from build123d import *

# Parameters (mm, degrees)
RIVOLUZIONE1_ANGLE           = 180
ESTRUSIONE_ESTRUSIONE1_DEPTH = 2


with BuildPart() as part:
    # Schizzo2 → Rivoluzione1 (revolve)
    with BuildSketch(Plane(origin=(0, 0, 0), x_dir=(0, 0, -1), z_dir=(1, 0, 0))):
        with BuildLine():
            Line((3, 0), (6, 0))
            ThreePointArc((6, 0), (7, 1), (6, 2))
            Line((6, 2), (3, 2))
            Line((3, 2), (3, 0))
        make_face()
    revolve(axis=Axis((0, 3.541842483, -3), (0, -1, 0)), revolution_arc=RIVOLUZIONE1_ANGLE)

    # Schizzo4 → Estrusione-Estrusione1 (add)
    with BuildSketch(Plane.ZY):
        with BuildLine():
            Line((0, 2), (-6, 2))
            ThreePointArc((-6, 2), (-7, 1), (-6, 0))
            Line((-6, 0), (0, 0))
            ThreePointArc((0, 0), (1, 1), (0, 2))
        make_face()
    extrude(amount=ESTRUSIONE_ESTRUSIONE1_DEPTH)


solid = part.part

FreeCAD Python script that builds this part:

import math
import FreeCAD as App
import Part
import Sketcher
from FreeCAD import Vector
Q = App.Units.Quantity

doc = App.newDocument("Part")
body = doc.addObject("PartDesign::Body", "Body")

sketch1 = doc.addObject("Sketcher::SketchObject", "Sketch")
body.addObject(sketch1)
sketch1.AttachmentSupport = (doc.YZ_Plane, [""])
sketch1.MapMode = "FlatFace"
sketch1.addGeometry([
    Part.LineSegment(Vector(0, -3, 0), Vector(0, -6, 0)),
    Part.ArcOfCircle(Part.Circle(Vector(1, -6, 0), Vector(0, 0, 1), 1), math.radians(180), math.radians(360)),
    Part.LineSegment(Vector(2, -6, 0), Vector(2, -3, 0)),
    Part.LineSegment(Vector(2, -3, 0), Vector(0, -3, 0)),
], False)
sketch1.addGeometry(Part.LineSegment(Vector(2, -3, 0), Vector(0, -3, 0)), True)
sketch1.addConstraint([
    Sketcher.Constraint("Tangent", 0, 2, 1, 1),
    Sketcher.Constraint("Tangent", 1, 2, 2, 1),
    Sketcher.Constraint("Coincident", 2, 2, 3, 1),
    Sketcher.Constraint("Coincident", 3, 2, 0, 1),
    Sketcher.Constraint("Vertical", 0),
    Sketcher.Constraint("Vertical", 2),
    Sketcher.Constraint("Horizontal", 3),
    Sketcher.Constraint("Horizontal", 4),
    Sketcher.Constraint("Coincident", 4, 1, 2, 2),
    Sketcher.Constraint("PointOnObject", 0, 2, -2),
    Sketcher.Constraint("PointOnObject", 4, 2, -2),
    Sketcher.Constraint("Radius", 1, Q("1 mm")),
    Sketcher.Constraint("DistanceY", 0, 2, 0, 1, Q("3 mm")),
    Sketcher.Constraint("DistanceY", 1, 3, -1, 1, Q("6 mm")),
])
revolution = doc.addObject("PartDesign::Revolution", "Revolution")
body.addObject(revolution)
revolution.Profile = sketch1
revolution.ReferenceAxis = (sketch1, ["Axis0"])
revolution.Angle = 180

sketch2 = doc.addObject("Sketcher::SketchObject", "Sketch001")
body.addObject(sketch2)
sketch2.AttachmentSupport = (doc.YZ_Plane, [""])
sketch2.MapMode = "FlatFace"
sketch2.addGeometry([
    Part.LineSegment(Vector(2, 0, 0), Vector(2, -6, 0)),
    Part.ArcOfCircle(Part.Circle(Vector(1, -6, 0), Vector(0, 0, 1), 1), math.radians(180), math.radians(360)),
    Part.LineSegment(Vector(0, -6, 0), Vector(0, 0, 0)),
    Part.ArcOfCircle(Part.Circle(Vector(1, 0, 0), Vector(0, 0, 1), 1), math.radians(0), math.radians(180)),
], False)
sketch2.addConstraint([
    Sketcher.Constraint("Tangent", 0, 2, 1, 2),
    Sketcher.Constraint("Tangent", 1, 1, 2, 1),
    Sketcher.Constraint("Tangent", 2, 2, 3, 2),
    Sketcher.Constraint("Tangent", 3, 1, 0, 1),
    Sketcher.Constraint("Vertical", 0),
    Sketcher.Constraint("Vertical", 2),
    Sketcher.Constraint("Coincident", 2, 2, -1, 1),
    Sketcher.Constraint("Radius", 1, Q("1 mm")),
    Sketcher.Constraint("DistanceY", 0, 2, 0, 1, Q("6 mm")),
])
pad1 = doc.addObject("PartDesign::Pad", "Pad")
body.addObject(pad1)
pad1.Profile = sketch2
pad1.Length = 2
pad1.Reversed = True

doc.recompute()
